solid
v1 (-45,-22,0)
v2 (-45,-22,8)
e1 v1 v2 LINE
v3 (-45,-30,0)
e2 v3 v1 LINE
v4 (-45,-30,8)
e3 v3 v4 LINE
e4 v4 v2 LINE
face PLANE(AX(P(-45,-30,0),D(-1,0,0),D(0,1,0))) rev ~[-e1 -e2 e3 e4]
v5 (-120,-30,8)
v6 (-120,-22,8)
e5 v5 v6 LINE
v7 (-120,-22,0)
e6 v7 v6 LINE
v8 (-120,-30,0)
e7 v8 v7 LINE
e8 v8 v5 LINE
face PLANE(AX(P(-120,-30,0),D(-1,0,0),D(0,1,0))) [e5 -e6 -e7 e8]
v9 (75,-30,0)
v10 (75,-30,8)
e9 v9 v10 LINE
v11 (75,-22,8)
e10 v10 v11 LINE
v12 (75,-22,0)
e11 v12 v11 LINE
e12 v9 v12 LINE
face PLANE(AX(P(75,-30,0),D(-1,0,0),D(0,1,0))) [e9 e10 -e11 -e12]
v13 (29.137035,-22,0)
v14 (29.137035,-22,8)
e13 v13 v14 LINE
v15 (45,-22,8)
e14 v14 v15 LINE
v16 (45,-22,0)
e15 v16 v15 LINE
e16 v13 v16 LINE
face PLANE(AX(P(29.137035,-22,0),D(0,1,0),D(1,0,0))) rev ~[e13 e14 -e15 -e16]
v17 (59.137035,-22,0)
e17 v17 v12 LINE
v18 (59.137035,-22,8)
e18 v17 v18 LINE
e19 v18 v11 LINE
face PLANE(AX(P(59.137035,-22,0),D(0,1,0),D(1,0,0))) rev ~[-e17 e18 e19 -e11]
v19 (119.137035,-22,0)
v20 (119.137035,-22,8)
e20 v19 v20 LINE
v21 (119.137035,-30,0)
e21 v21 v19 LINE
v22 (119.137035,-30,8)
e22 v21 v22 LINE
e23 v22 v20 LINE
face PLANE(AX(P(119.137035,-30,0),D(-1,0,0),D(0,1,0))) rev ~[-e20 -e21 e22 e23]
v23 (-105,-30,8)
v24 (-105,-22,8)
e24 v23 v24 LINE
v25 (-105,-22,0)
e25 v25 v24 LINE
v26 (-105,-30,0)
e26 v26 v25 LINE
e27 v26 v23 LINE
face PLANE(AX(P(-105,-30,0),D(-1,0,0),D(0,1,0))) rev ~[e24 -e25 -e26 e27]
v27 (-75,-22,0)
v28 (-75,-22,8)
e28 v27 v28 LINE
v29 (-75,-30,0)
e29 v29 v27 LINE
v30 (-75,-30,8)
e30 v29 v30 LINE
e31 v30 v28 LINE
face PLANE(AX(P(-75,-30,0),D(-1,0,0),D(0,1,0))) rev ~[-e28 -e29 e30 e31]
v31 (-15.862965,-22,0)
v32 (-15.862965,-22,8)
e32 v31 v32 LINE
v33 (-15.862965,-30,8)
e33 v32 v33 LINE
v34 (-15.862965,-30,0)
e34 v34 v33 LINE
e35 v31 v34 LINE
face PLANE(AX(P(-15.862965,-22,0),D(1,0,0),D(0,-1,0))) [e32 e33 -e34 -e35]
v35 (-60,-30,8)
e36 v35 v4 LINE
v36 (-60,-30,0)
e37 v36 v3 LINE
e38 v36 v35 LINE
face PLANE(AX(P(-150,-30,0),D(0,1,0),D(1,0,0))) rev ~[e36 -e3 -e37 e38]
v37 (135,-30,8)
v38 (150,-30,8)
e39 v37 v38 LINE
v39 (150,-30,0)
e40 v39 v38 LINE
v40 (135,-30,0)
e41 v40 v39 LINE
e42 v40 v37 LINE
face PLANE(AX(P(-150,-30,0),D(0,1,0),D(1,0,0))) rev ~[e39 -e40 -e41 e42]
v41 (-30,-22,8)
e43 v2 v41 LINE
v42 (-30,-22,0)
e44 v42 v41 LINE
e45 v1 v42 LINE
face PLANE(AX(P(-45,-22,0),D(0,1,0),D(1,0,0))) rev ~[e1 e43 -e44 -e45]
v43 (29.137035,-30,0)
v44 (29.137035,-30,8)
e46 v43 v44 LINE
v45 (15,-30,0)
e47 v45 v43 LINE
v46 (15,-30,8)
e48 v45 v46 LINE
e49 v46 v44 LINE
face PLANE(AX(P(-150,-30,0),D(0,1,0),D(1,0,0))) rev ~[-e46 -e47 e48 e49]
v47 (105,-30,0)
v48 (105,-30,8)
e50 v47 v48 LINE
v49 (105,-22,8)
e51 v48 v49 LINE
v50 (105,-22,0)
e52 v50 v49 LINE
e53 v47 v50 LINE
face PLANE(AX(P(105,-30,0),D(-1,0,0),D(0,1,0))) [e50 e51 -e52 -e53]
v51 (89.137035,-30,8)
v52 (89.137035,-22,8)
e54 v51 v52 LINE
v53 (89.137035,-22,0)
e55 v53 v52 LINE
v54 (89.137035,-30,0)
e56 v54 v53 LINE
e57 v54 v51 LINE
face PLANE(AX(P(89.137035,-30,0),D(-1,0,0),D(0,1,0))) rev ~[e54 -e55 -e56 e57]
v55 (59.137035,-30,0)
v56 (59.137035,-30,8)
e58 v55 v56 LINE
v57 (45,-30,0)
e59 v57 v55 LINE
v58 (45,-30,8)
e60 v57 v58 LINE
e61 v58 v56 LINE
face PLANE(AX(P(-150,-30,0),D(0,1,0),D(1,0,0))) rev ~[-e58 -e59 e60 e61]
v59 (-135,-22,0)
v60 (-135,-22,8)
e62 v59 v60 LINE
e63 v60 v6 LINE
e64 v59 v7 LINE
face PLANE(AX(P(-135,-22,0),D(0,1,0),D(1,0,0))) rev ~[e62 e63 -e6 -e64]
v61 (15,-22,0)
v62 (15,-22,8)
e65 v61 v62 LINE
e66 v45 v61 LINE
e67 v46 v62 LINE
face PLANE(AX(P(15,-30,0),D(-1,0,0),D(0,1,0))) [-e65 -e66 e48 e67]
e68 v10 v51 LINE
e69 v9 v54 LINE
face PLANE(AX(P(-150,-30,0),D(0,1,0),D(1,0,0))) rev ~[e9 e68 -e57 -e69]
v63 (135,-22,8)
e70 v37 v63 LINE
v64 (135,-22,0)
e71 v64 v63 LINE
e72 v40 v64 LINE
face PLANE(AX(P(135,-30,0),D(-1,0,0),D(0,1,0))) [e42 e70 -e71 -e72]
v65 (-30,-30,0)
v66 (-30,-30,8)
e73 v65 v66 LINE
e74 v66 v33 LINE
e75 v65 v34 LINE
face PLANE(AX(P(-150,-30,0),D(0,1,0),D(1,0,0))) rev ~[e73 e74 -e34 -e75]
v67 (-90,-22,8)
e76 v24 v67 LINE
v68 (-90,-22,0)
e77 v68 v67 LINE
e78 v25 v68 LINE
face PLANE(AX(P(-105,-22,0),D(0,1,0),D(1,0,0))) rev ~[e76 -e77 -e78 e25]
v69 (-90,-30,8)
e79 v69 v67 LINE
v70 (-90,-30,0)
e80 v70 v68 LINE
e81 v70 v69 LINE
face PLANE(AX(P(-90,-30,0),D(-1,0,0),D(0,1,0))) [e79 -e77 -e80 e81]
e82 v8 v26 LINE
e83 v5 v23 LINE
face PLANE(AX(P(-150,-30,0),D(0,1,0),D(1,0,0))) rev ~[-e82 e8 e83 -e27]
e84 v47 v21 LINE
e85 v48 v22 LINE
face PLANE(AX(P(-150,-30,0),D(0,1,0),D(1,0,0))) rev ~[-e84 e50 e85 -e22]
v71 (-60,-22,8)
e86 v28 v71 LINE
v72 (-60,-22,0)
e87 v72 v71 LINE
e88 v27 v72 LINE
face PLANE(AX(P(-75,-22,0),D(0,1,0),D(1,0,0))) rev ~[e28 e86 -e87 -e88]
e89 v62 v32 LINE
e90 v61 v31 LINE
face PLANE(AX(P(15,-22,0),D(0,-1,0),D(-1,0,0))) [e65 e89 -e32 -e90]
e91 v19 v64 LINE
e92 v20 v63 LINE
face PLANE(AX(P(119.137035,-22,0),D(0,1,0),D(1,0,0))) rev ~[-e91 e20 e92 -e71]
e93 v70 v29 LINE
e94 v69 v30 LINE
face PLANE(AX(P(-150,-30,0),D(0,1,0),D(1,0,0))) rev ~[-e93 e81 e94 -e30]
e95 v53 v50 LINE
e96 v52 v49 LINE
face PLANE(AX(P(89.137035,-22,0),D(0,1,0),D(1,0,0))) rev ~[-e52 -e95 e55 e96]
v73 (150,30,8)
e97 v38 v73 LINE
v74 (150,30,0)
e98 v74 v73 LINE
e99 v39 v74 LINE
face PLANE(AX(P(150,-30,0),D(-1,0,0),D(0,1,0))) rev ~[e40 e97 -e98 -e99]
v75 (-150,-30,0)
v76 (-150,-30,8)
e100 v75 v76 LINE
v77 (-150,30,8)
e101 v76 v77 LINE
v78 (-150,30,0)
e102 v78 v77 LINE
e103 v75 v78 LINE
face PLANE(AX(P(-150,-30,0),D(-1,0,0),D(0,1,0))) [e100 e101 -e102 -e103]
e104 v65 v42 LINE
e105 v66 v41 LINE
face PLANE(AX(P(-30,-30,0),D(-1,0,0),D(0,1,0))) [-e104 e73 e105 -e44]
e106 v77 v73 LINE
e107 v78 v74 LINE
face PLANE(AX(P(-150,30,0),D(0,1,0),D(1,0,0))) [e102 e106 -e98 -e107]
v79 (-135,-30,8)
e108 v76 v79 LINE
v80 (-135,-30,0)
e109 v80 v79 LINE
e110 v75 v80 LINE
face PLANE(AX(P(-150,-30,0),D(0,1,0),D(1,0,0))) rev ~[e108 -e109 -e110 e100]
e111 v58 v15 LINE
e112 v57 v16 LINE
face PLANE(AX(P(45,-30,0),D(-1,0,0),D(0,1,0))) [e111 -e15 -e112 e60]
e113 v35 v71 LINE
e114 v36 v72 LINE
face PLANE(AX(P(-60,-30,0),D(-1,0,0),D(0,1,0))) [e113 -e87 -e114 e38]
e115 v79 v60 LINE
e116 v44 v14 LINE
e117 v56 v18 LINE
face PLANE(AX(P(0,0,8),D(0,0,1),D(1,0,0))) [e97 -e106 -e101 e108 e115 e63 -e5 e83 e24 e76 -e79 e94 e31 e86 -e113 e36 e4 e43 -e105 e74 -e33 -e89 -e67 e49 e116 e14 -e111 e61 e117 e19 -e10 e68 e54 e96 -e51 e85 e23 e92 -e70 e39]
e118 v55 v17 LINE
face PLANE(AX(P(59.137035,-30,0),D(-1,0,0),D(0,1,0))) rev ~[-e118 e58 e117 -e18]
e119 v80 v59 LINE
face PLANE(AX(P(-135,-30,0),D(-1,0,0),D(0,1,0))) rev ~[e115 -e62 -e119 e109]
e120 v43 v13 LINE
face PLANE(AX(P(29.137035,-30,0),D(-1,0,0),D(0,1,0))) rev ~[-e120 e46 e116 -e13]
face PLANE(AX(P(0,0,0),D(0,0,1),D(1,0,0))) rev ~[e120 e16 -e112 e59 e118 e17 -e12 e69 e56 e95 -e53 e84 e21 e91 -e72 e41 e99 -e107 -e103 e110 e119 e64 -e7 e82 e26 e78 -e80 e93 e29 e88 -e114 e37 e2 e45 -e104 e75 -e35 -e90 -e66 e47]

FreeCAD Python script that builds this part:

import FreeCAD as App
import Part
import Sketcher

V = App.Vector
Q = App.Units.Quantity

doc = App.newDocument("Part")
body = doc.addObject("PartDesign::Body", "Body")

# Sketch on XY plane
sketch1 = body.newObject("Sketcher::SketchObject", "Sketch")
sketch1.AttachmentSupport = (doc.getObject("XY_Plane"), [""])
sketch1.MapMode = "FlatFace"
sketch1.addGeometry(Part.LineSegment(V(-150, 30, 0), V(-150, -30, 0)), False)
sketch1.addGeometry(Part.LineSegment(V(-150, -30, 0), V(150, -30, 0)), False)
sketch1.addGeometry(Part.LineSegment(V(150, -30, 0), V(150, 30, 0)), False)
sketch1.addGeometry(Part.LineSegment(V(150, 30, 0), V(-150, 30, 0)), False)
sketch1.addConstraint(Sketcher.Constraint("Coincident", 0, 2, 1, 1))
sketch1.addConstraint(Sketcher.Constraint("Coincident", 1, 2, 2, 1))
sketch1.addConstraint(Sketcher.Constraint("Coincident", 2, 2, 3, 1))
sketch1.addConstraint(Sketcher.Constraint("Coincident", 3, 2, 0, 1))
sketch1.addConstraint(Sketcher.Constraint("Vertical", 0))
sketch1.addConstraint(Sketcher.Constraint("Horizontal", 1))
sketch1.addConstraint(Sketcher.Constraint("Vertical", 2))
sketch1.addConstraint(Sketcher.Constraint("Horizontal", 3))
sketch1.addConstraint(Sketcher.Constraint("Symmetric", 0, 2, 2, 2, -1, 1))
sketch1.addConstraint(Sketcher.Constraint("DistanceX", 1, 1, 1, 2, Q("300 mm")))
sketch1.addConstraint(Sketcher.Constraint("DistanceY", 0, 2, 0, 1, Q("60 mm")))
pad1 = body.newObject("PartDesign::Pad", "Pad")
pad1.Profile = sketch1
pad1.Length = 8

# Sketch on XY plane
sketch2 = body.newObject("Sketcher::SketchObject", "Sketch001")
sketch2.AttachmentSupport = (doc.getObject("XY_Plane"), [""])
sketch2.MapMode = "FlatFace"
sketch2.addGeometry(Part.LineSegment(V(15, -30, 0), V(15, -22, 0)), False)
sketch2.addGeometry(Part.LineSegment(V(15, -22, 0), V(-16, -22, 0)), False)
sketch2.addGeometry(Part.LineSegment(V(-16, -22, 0), V(-16, -30, 0)), False)
sketch2.addGeometry(Part.LineSegment(V(-16, -30, 0), V(15, -30, 0)), False)
sketch2.addGeometry(Part.LineSegment(V(29, -22, 0), V(29, -30, 0)), False)
sketch2.addGeometry(Part.LineSegment(V(29, -30, 0), V(45, -30, 0)), False)
sketch2.addGeometry(Part.LineSegment(V(45, -30, 0), V(45, -22, 0)), False)
sketch2.addGeometry(Part.LineSegment(V(45, -22, 0), V(29, -22, 0)), False)
sketch2.addGeometry(Part.LineSegment(V(59, -22, 0), V(59, -30, 0)), False)
sketch2.addGeometry(Part.LineSegment(V(59, -30, 0), V(75, -30, 0)), False)
sketch2.addGeometry(Part.LineSegment(V(75, -30, 0), V(75, -22, 0)), False)
sketch2.addGeometry(Part.LineSegment(V(75, -22, 0), V(59, -22, 0)), False)
sketch2.addGeometry(Part.LineSegment(V(89, -22, 0), V(89, -30, 0)), False)
sketch2.addGeometry(Part.LineSegment(V(89, -30, 0), V(105, -30, 0)), False)
sketch2.addGeometry(Part.LineSegment(V(105, -30, 0), V(105, -22, 0)), False)
sketch2.addGeometry(Part.LineSegment(V(105, -22, 0), V(89, -22, 0)), False)
sketch2.addGeometry(Part.LineSegment(V(119, -22, 0), V(119, -30, 0)), False)
sketch2.addGeometry(Part.LineSegment(V(119, -30, 0), V(135, -30, 0)), False)
sketch2.addGeometry(Part.LineSegment(V(135, -30, 0), V(135, -22, 0)), False)
sketch2.addGeometry(Part.LineSegment(V(135, -22, 0), V(119, -22, 0)), False)
sketch2.addGeometry(Part.LineSegment(V(-135, -22, 0), V(-135, -30, 0)), False)
sketch2.addGeometry(Part.LineSegment(V(-135, -30, 0), V(-120, -30, 0)), False)
sketch2.addGeometry(Part.LineSegment(V(-120, -30, 0), V(-120, -22, 0)), False)
sketch2.addGeometry(Part.LineSegment(V(-120, -22, 0), V(-135, -22, 0)), False)
sketch2.addGeometry(Part.LineSegment(V(-105, -22, 0), V(-105, -30, 0)), False)
sketch2.addGeometry(Part.LineSegment(V(-105, -30, 0), V(-90, -30, 0)), False)
sketch2.addGeometry(Part.LineSegment(V(-90, -30, 0), V(-90, -22, 0)), False)
sketch2.addGeometry(Part.LineSegment(V(-90, -22, 0), V(-105, -22, 0)), False)
sketch2.addGeometry(Part.LineSegment(V(-75, -22, 0), V(-75, -30, 0)), False)
sketch2.addGeometry(Part.LineSegment(V(-75, -30, 0), V(-60, -30, 0)), False)
sketch2.addGeometry(Part.LineSegment(V(-60, -30, 0), V(-60, -22, 0)), False)
sketch2.addGeometry(Part.LineSegment(V(-60, -22, 0), V(-75, -22, 0)), False)
sketch2.addGeometry(Part.LineSegment(V(-45, -22, 0), V(-45, -30, 0)), False)
sketch2.addGeometry(Part.LineSegment(V(-45, -30, 0), V(-30, -30, 0)), False)
sketch2.addGeometry(Part.LineSegment(V(-30, -30, 0), V(-30, -22, 0)), False)
sketch2.addGeometry(Part.LineSegment(V(-30, -22, 0), V(-45, -22, 0)), False)
sketch2.addConstraint(Sketcher.Constraint("Coincident", 0, 2, 1, 1))
sketch2.addConstraint(Sketcher.Constraint("Coincident", 1, 2, 2, 1))
sketch2.addConstraint(Sketcher.Constraint("Coincident", 2, 2, 3, 1))
sketch2.addConstraint(Sketcher.Constraint("Coincident", 3, 2, 0, 1))
sketch2.addConstraint(Sketcher.Constraint("Coincident", 4, 2, 5, 1))
sketch2.addConstraint(Sketcher.Constraint("Coincident", 5, 2, 6, 1))
sketch2.addConstraint(Sketcher.Constraint("Coincident", 6, 2, 7, 1))
sketch2.addConstraint(Sketcher.Constraint("Coincident", 7, 2, 4, 1))
sketch2.addConstraint(Sketcher.Constraint("Coincident", 8, 2, 9, 1))
sketch2.addConstraint(Sketcher.Constraint("Coincident", 9, 2, 10, 1))
sketch2.addConstraint(Sketcher.Constraint("Coincident", 10, 2, 11, 1))
sketch2.addConstraint(Sketcher.Constraint("Coincident", 11, 2, 8, 1))
sketch2.addConstraint(Sketcher.Constraint("Coincident", 12, 2, 13, 1))
sketch2.addConstraint(Sketcher.Constraint("Coincident", 13, 2, 14, 1))
sketch2.addConstraint(Sketcher.Constraint("Coincident", 14, 2, 15, 1))
sketch2.addConstraint(Sketcher.Constraint("Coincident", 15, 2, 12, 1))
sketch2.addConstraint(Sketcher.Constraint("Coincident", 16, 2, 17, 1))
sketch2.addConstraint(Sketcher.Constraint("Coincident", 17, 2, 18, 1))
sketch2.addConstraint(Sketcher.Constraint("Coincident", 18, 2, 19, 1))
sketch2.addConstraint(Sketcher.Constraint("Coincident", 19, 2, 16, 1))
sketch2.addConstraint(Sketcher.Constraint("Coincident", 20, 2, 21, 1))
sketch2.addConstraint(Sketcher.Constraint("Coincident", 21, 2, 22, 1))
sketch2.addConstraint(Sketcher.Constraint("Coincident", 22, 2, 23, 1))
sketch2.addConstraint(Sketcher.Constraint("Coincident", 23, 2, 20, 1))
sketch2.addConstraint(Sketcher.Constraint("Coincident", 24, 2, 25, 1))
sketch2.addConstraint(Sketcher.Constraint("Coincident", 25, 2, 26, 1))
sketch2.addConstraint(Sketcher.Constraint("Coincident", 26, 2, 27, 1))
sketch2.addConstraint(Sketcher.Constraint("Coincident", 27, 2, 24, 1))
sketch2.addConstraint(Sketcher.Constraint("Coincident", 28, 2, 29, 1))
sketch2.addConstraint(Sketcher.Constraint("Coincident", 29, 2, 30, 1))
sketch2.addConstraint(Sketcher.Constraint("Coincident", 30, 2, 31, 1))
sketch2.addConstraint(Sketcher.Constraint("Coincident", 31, 2, 28, 1))
sketch2.addConstraint(Sketcher.Constraint("Coincident", 32, 2, 33, 1))
sketch2.addConstraint(Sketcher.Constraint("Coincident", 33, 2, 34, 1))
sketch2.addConstraint(Sketcher.Constraint("Coincident", 34, 2, 35, 1))
sketch2.addConstraint(Sketcher.Constraint("Coincident", 35, 2, 32, 1))
sketch2.addConstraint(Sketcher.Constraint("Vertical", 0))
sketch2.addConstraint(Sketcher.Constraint("Horizontal", 1))
sketch2.addConstraint(Sketcher.Constraint("Vertical", 2))
sketch2.addConstraint(Sketcher.Constraint("Horizontal", 3))
sketch2.addConstraint(Sketcher.Constraint("Vertical", 4))
sketch2.addConstraint(Sketcher.Constraint("Horizontal", 5))
sketch2.addConstraint(Sketcher.Constraint("Vertical", 6))
sketch2.addConstraint(Sketcher.Constraint("Horizontal", 7))
sketch2.addConstraint(Sketcher.Constraint("Vertical", 8))
sketch2.addConstraint(Sketcher.Constraint("Horizontal", 9))
sketch2.addConstraint(Sketcher.Constraint("Vertical", 10))
sketch2.addConstraint(Sketcher.Constraint("Horizontal", 11))
sketch2.addConstraint(Sketcher.Constraint("Vertical", 12))
sketch2.addConstraint(Sketcher.Constraint("Horizontal", 13))
sketch2.addConstraint(Sketcher.Constraint("Vertical", 14))
sketch2.addConstraint(Sketcher.Constraint("Horizontal", 15))
sketch2.addConstraint(Sketcher.Constraint("Vertical", 16))
sketch2.addConstraint(Sketcher.Constraint("Horizontal", 17))
sketch2.addConstraint(Sketcher.Constraint("Vertical", 18))
sketch2.addConstraint(Sketcher.Constraint("Horizontal", 19))
sketch2.addConstraint(Sketcher.Constraint("Vertical", 20))
sketch2.addConstraint(Sketcher.Constraint("Horizontal", 21))
sketch2.addConstraint(Sketcher.Constraint("Vertical", 22))
sketch2.addConstraint(Sketcher.Constraint("Horizontal", 23))
sketch2.addConstraint(Sketcher.Constraint("Vertical", 24))
sketch2.addConstraint(Sketcher.Constraint("Horizontal", 25))
sketch2.addConstraint(Sketcher.Constraint("Vertical", 26))
sketch2.addConstraint(Sketcher.Constraint("Horizontal", 27))
sketch2.addConstraint(Sketcher.Constraint("Vertical", 28))
sketch2.addConstraint(Sketcher.Constraint("Horizontal", 29))
sketch2.addConstraint(Sketcher.Constraint("Vertical", 30))
sketch2.addConstraint(Sketcher.Constraint("Horizontal", 31))
sketch2.addConstraint(Sketcher.Constraint("Vertical", 32))
sketch2.addConstraint(Sketcher.Constraint("Horizontal", 33))
sketch2.addConstraint(Sketcher.Constraint("Vertical", 34))
sketch2.addConstraint(Sketcher.Constraint("Horizontal", 35))
sketch2.addConstraint(Sketcher.Constraint("Symmetric", 17, 2, 20, 2, -2))
sketch2.addConstraint(Sketcher.Constraint("Symmetric", 13, 2, 24, 2, -2))
sketch2.addConstraint(Sketcher.Constraint("Symmetric", 9, 2, 28, 2, -2))
sketch2.addConstraint(Sketcher.Constraint("Symmetric", 5, 2, 32, 2, -2))
sketch2.addConstraint(Sketcher.Constraint("Horizontal", 3, 2, 4, 2))
sketch2.addConstraint(Sketcher.Constraint("Horizontal", 1, 2, 6, 2))
sketch2.addConstraint(Sketcher.Constraint("Horizontal", 5, 2, 8, 2))
sketch2.addConstraint(Sketcher.Constraint("Horizontal", 7, 2, 10, 2))
sketch2.addConstraint(Sketcher.Constraint("Horizontal", 9, 2, 12, 2))
sketch2.addConstraint(Sketcher.Constraint("Horizontal", 11, 2, 14, 2))
sketch2.addConstraint(Sketcher.Constraint("Horizontal", 13, 2, 16, 2))
sketch2.addConstraint(Sketcher.Constraint("Horizontal", 15, 2, 18, 2))
sketch2.addConstraint(Sketcher.Constraint("Horizontal", 19, 2, 22, 2))
sketch2.addConstraint(Sketcher.Constraint("Horizontal", 23, 2, 26, 2))
sketch2.addConstraint(Sketcher.Constraint("Horizontal", 27, 2, 30, 2))
sketch2.addConstraint(Sketcher.Constraint("Horizontal", 31, 2, 34, 2))
sketch2.addConstraint(Sketcher.Constraint("Equal", 7, 9))
sketch2.addConstraint(Sketcher.Constraint("Equal", 11, 13))
sketch2.addConstraint(Sketcher.Constraint("Equal", 15, 17))
sketch2.addConstraint(Sketcher.Constraint("Equal", 23, 25))
sketch2.addConstraint(Sketcher.Constraint("Equal", 27, 29))
sketch2.addConstraint(Sketcher.Constraint("Equal", 31, 33))
sketch2.addConstraint(Sketcher.Constraint("DistanceX", 21, 1, 21, 2, Q("15 mm")))
sketch2.addConstraint(Sketcher.Constraint("DistanceY", 0, 1, 0, 2, Q("8 mm")))
sketch2.addConstraint(Sketcher.Constraint("DistanceX", -1, 1, 0, 2, Q("15 mm")))
sketch2.addConstraint(Sketcher.Constraint("DistanceY", 0, 2, -1, 1, Q("22 mm")))
sketch2.addConstraint(Sketcher.Constraint("DistanceX", -1, 1, 5, 2, Q("45 mm")))
sketch2.addConstraint(Sketcher.Constraint("DistanceX", -1, 1, 9, 2, Q("75 mm")))
sketch2.addConstraint(Sketcher.Constraint("DistanceX", -1, 1, 13, 2, Q("105 mm")))
sketch2.addConstraint(Sketcher.Constraint("DistanceX", -1, 1, 17, 2, Q("135 mm")))
sketch2.addConstraint(Sketcher.Constraint("DistanceX", 2, 2, 4, 2, Q("45 mm")))
sketch2.addConstraint(Sketcher.Constraint("DistanceX", 1, 2, 1, 1, Q("30.862965 mm")))
pocket1 = body.newObject("PartDesign::Pocket", "Pocket")
pocket1.Profile = sketch2
pocket1.Length = 8
pocket1.Reversed = True

doc.recompute()
